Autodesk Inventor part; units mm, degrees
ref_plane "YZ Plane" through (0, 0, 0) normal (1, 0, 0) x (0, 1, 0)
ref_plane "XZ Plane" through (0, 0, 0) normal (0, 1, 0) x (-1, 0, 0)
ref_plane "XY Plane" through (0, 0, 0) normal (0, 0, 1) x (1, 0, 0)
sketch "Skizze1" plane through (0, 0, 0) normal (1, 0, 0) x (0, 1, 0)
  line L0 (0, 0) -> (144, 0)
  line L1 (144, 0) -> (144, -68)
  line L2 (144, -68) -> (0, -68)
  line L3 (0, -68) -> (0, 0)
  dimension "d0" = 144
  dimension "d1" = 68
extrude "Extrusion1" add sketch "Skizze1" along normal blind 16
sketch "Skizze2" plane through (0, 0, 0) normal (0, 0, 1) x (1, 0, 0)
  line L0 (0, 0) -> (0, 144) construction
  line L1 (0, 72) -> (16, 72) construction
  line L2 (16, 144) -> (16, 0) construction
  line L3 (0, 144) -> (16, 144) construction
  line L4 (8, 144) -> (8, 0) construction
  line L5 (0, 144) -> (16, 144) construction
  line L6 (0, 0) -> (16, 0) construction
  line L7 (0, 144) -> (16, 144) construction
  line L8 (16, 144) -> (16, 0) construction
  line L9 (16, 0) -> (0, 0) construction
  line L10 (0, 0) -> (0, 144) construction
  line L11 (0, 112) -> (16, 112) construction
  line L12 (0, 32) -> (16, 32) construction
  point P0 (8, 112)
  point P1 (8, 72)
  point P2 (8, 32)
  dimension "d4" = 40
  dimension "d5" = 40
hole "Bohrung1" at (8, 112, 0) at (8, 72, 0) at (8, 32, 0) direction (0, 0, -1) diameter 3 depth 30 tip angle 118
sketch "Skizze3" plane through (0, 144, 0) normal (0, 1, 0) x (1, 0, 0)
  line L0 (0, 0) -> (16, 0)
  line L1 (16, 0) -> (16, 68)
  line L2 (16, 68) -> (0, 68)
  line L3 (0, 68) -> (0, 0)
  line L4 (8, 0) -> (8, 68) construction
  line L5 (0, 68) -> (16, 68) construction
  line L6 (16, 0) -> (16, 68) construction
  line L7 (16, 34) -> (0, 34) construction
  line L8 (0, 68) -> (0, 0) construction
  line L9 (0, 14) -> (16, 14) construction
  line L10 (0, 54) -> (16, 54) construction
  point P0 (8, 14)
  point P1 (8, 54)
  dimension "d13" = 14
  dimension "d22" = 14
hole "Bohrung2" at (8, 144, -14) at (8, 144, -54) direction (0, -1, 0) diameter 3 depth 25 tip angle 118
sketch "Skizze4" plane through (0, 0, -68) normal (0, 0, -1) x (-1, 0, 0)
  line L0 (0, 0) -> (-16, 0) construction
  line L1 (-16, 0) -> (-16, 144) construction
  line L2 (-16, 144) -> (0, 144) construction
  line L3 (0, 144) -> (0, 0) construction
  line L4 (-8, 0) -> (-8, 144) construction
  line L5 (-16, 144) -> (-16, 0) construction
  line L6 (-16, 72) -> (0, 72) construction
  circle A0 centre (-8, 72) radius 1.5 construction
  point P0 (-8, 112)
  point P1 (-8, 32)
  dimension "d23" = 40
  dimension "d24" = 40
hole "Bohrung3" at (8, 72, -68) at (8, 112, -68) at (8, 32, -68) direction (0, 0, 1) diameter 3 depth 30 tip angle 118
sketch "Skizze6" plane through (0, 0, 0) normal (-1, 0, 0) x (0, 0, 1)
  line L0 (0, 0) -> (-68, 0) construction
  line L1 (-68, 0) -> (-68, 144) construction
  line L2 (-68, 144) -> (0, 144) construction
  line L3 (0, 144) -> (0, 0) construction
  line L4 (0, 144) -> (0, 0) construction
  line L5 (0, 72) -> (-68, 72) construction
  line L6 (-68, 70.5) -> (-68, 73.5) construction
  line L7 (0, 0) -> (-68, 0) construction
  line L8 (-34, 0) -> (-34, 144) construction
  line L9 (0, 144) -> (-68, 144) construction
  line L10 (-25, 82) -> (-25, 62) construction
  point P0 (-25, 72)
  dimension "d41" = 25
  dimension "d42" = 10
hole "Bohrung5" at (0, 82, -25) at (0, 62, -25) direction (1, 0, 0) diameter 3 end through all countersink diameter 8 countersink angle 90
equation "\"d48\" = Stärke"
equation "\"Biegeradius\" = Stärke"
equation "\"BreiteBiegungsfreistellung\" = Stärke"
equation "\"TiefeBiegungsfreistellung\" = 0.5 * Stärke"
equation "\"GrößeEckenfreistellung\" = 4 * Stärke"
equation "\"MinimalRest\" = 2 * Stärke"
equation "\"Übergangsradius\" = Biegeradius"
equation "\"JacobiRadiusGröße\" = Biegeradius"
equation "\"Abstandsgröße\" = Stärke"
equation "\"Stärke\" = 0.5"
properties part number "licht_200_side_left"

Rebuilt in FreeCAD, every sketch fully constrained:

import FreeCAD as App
import Part
import Sketcher

doc = App.newDocument("Part")
params = doc.addObject("Spreadsheet::Sheet", "Params")
for row, (alias, value) in enumerate([
    ("sketch1_width", "144 mm"),
    ("sketch1_height", "68 mm"),
    ("pad1_length", "16 mm"),
    ("sketch2_diameter", "3 mm"),
    ("hole_diameter", "3 mm"),
    ("hole_depth", "30 mm"),
    ("sketch3_diameter", "3 mm"),
    ("hole2_diameter", "3 mm"),
    ("hole2_depth", "25 mm"),
    ("sketch4_diameter", "3 mm"),
    ("hole3_diameter", "3 mm"),
    ("hole3_depth", "30 mm"),
    ("sketch5_diameter", "3 mm"),
    ("hole4_diameter", "3 mm"),
    ("hole4_csink_diameter", "8 mm"),
], start=1):
    params.set(f"A{row}", alias)
    params.set(f"B{row}", "=" + value)
    params.setAlias(f"B{row}", alias)

body = doc.addObject("PartDesign::Body", "Body")

sketch1 = body.newObject("Sketcher::SketchObject", "Sketch")
sketch1.AttachmentSupport = (doc.getObject("YZ_Plane"), [""])
sketch1.MapMode = "FlatFace"
sketch1.addGeometry(Part.LineSegment(App.Vector(144, 0, 0), App.Vector(0, 0, 0)), False)
sketch1.addGeometry(Part.LineSegment(App.Vector(0, 0, 0), App.Vector(0, -68, 0)), False)
sketch1.addGeometry(Part.LineSegment(App.Vector(0, -68, 0), App.Vector(144, -68, 0)), False)
sketch1.addGeometry(Part.LineSegment(App.Vector(144, -68, 0), App.Vector(144, 0, 0)), False)
sketch1.addConstraint(Sketcher.Constraint("Coincident", 0, 2, 1, 1))
sketch1.addConstraint(Sketcher.Constraint("Coincident", 1, 2, 2, 1))
sketch1.addConstraint(Sketcher.Constraint("Coincident", 2, 2, 3, 1))
sketch1.addConstraint(Sketcher.Constraint("Coincident", 3, 2, 0, 1))
sketch1.addConstraint(Sketcher.Constraint("Horizontal", 0))
sketch1.addConstraint(Sketcher.Constraint("Vertical", 1))
sketch1.addConstraint(Sketcher.Constraint("Horizontal", 2))
sketch1.addConstraint(Sketcher.Constraint("Vertical", 3))
sketch1.addConstraint(Sketcher.Constraint("Coincident", 0, 2, -1, 1))
sketch1.addConstraint(Sketcher.Constraint("DistanceX", 0, 2, 0, 1, 144.0))
sketch1.addConstraint(Sketcher.Constraint("DistanceY", 1, 2, 1, 1, 68.0))
sketch1.setExpression("Constraints[9]", "Params.sketch1_width")
sketch1.setExpression("Constraints[10]", "Params.sketch1_height")
pad1 = body.newObject("PartDesign::Pad", "Pad")
pad1.Profile = sketch1
pad1.setExpression("Length", "Params.pad1_length")

sketch2 = body.newObject("Sketcher::SketchObject", "Sketch001")
sketch2.AttachmentSupport = (doc.getObject("XY_Plane"), [""])
sketch2.MapMode = "FlatFace"
sketch2.addGeometry(Part.Circle(App.Vector(8, 112, 0), App.Vector(0, 0, 1), 1.5), False)
sketch2.addGeometry(Part.Circle(App.Vector(8, 72, 0), App.Vector(0, 0, 1), 1.5), False)
sketch2.addGeometry(Part.Circle(App.Vector(8, 32, 0), App.Vector(0, 0, 1), 1.5), False)
sketch2.addConstraint(Sketcher.Constraint("Equal", 0, 1))
sketch2.addConstraint(Sketcher.Constraint("Equal", 1, 2))
sketch2.addConstraint(Sketcher.Constraint("Vertical", 0, 3, 1, 3))
sketch2.addConstraint(Sketcher.Constraint("Vertical", 1, 3, 2, 3))
sketch2.addConstraint(Sketcher.Constraint("Diameter", 0, 3.0))
sketch2.addConstraint(Sketcher.Constraint("DistanceX", -1, 1, 0, 3, 8.0))
sketch2.addConstraint(Sketcher.Constraint("DistanceY", -1, 1, 0, 3, 112.0))
sketch2.addConstraint(Sketcher.Constraint("DistanceY", -1, 1, 1, 3, 72.0))
sketch2.addConstraint(Sketcher.Constraint("DistanceY", -1, 1, 2, 3, 32.0))
sketch2.setExpression("Constraints[4]", "Params.sketch2_diameter")
doc.recompute()
hole = body.newObject("PartDesign::Hole", "Hole")
hole.Profile = sketch2
hole.ThreadType = "None"
hole.setExpression("Diameter", "Params.hole_diameter")
hole.DepthType = "Dimension"
hole.setExpression("Depth", "Params.hole_depth")
hole.DrillPoint = "Angled"
hole.DrillPointAngle = 118

sketch3 = body.newObject("Sketcher::SketchObject", "Sketch002")
sketch3.AttachmentSupport = (doc.getObject("XZ_Plane"), [""])
sketch3.MapMode = "FlatFace"
sketch3.AttachmentOffset = App.Placement(App.Vector(0, 0, -144), App.Rotation())
sketch3.addGeometry(Part.Circle(App.Vector(8, -14, 0), App.Vector(0, 0, 1), 1.5), False)
sketch3.addGeometry(Part.Circle(App.Vector(8, -54, 0), App.Vector(0, 0, 1), 1.5), False)
sketch3.addConstraint(Sketcher.Constraint("Equal", 0, 1))
sketch3.addConstraint(Sketcher.Constraint("Vertical", 0, 3, 1, 3))
sketch3.addConstraint(Sketcher.Constraint("Diameter", 0, 3.0))
sketch3.addConstraint(Sketcher.Constraint("DistanceX", -1, 1, 0, 3, 8.0))
sketch3.addConstraint(Sketcher.Constraint("DistanceY", 0, 3, -1, 1, 14.0))
sketch3.addConstraint(Sketcher.Constraint("DistanceY", 1, 3, -1, 1, 54.0))
sketch3.setExpression("Constraints[2]", "Params.sketch3_diameter")
doc.recompute()
hole2 = body.newObject("PartDesign::Hole", "Hole001")
hole2.Profile = sketch3
hole2.ThreadType = "None"
hole2.setExpression("Diameter", "Params.hole2_diameter")
hole2.DepthType = "Dimension"
hole2.setExpression("Depth", "Params.hole2_depth")
hole2.DrillPoint = "Angled"
hole2.DrillPointAngle = 118
hole2.Reversed = True

sketch4 = body.newObject("Sketcher::SketchObject", "Sketch003")
sketch4.AttachmentSupport = (doc.getObject("XY_Plane"), [""])
sketch4.MapMode = "FlatFace"
sketch4.AttachmentOffset = App.Placement(App.Vector(0, 0, -68), App.Rotation())
sketch4.addGeometry(Part.Circle(App.Vector(8, 72, 0), App.Vector(0, 0, 1), 1.5), False)
sketch4.addGeometry(Part.Circle(App.Vector(8, 112, 0), App.Vector(0, 0, 1), 1.5), False)
sketch4.addGeometry(Part.Circle(App.Vector(8, 32, 0), App.Vector(0, 0, 1), 1.5), False)
sketch4.addConstraint(Sketcher.Constraint("Equal", 0, 1))
sketch4.addConstraint(Sketcher.Constraint("Equal", 1, 2))
sketch4.addConstraint(Sketcher.Constraint("Vertical", 0, 3, 1, 3))
sketch4.addConstraint(Sketcher.Constraint("Vertical", 1, 3, 2, 3))
sketch4.addConstraint(Sketcher.Constraint("Diameter", 0, 3.0))
sketch4.addConstraint(Sketcher.Constraint("DistanceX", -1, 1, 0, 3, 8.0))
sketch4.addConstraint(Sketcher.Constraint("DistanceY", -1, 1, 0, 3, 72.0))
sketch4.addConstraint(Sketcher.Constraint("DistanceY", -1, 1, 1, 3, 112.0))
sketch4.addConstraint(Sketcher.Constraint("DistanceY", -1, 1, 2, 3, 32.0))
sketch4.setExpression("Constraints[4]", "Params.sketch4_diameter")
doc.recompute()
hole3 = body.newObject("PartDesign::Hole", "Hole002")
hole3.Profile = sketch4
hole3.ThreadType = "None"
hole3.setExpression("Diameter", "Params.hole3_diameter")
hole3.DepthType = "Dimension"
hole3.setExpression("Depth", "Params.hole3_depth")
hole3.DrillPoint = "Angled"
hole3.DrillPointAngle = 118
hole3.Reversed = True

sketch5 = body.newObject("Sketcher::SketchObject", "Sketch004")
sketch5.AttachmentSupport = (doc.getObject("YZ_Plane"), [""])
sketch5.MapMode = "FlatFace"
sketch5.addGeometry(Part.Circle(App.Vector(82, -25, 0), App.Vector(0, 0, 1), 1.5), False)
sketch5.addGeometry(Part.Circle(App.Vector(62, -25, 0), App.Vector(0, 0, 1), 1.5), False)
sketch5.addConstraint(Sketcher.Constraint("Equal", 0, 1))
sketch5.addConstraint(Sketcher.Constraint("Horizontal", 0, 3, 1, 3))
sketch5.addConstraint(Sketcher.Constraint("Diameter", 0, 3.0))
sketch5.addConstraint(Sketcher.Constraint("DistanceX", -1, 1, 0, 3, 82.0))
sketch5.addConstraint(Sketcher.Constraint("DistanceY", 0, 3, -1, 1, 25.0))
sketch5.addConstraint(Sketcher.Constraint("DistanceX", -1, 1, 1, 3, 62.0))
sketch5.setExpression("Constraints[2]", "Params.sketch5_diameter")
doc.recompute()
hole4 = body.newObject("PartDesign::Hole", "Hole003")
hole4.Profile = sketch5
hole4.ThreadType = "None"
hole4.setExpression("Diameter", "Params.hole4_diameter")
hole4.DepthType = "ThroughAll"
hole4.HoleCutType = "Countersink"
hole4.setExpression("HoleCutDiameter", "Params.hole4_csink_diameter")
hole4.HoleCutCountersinkAngle = 90
hole4.Reversed = True

doc.recompute()
